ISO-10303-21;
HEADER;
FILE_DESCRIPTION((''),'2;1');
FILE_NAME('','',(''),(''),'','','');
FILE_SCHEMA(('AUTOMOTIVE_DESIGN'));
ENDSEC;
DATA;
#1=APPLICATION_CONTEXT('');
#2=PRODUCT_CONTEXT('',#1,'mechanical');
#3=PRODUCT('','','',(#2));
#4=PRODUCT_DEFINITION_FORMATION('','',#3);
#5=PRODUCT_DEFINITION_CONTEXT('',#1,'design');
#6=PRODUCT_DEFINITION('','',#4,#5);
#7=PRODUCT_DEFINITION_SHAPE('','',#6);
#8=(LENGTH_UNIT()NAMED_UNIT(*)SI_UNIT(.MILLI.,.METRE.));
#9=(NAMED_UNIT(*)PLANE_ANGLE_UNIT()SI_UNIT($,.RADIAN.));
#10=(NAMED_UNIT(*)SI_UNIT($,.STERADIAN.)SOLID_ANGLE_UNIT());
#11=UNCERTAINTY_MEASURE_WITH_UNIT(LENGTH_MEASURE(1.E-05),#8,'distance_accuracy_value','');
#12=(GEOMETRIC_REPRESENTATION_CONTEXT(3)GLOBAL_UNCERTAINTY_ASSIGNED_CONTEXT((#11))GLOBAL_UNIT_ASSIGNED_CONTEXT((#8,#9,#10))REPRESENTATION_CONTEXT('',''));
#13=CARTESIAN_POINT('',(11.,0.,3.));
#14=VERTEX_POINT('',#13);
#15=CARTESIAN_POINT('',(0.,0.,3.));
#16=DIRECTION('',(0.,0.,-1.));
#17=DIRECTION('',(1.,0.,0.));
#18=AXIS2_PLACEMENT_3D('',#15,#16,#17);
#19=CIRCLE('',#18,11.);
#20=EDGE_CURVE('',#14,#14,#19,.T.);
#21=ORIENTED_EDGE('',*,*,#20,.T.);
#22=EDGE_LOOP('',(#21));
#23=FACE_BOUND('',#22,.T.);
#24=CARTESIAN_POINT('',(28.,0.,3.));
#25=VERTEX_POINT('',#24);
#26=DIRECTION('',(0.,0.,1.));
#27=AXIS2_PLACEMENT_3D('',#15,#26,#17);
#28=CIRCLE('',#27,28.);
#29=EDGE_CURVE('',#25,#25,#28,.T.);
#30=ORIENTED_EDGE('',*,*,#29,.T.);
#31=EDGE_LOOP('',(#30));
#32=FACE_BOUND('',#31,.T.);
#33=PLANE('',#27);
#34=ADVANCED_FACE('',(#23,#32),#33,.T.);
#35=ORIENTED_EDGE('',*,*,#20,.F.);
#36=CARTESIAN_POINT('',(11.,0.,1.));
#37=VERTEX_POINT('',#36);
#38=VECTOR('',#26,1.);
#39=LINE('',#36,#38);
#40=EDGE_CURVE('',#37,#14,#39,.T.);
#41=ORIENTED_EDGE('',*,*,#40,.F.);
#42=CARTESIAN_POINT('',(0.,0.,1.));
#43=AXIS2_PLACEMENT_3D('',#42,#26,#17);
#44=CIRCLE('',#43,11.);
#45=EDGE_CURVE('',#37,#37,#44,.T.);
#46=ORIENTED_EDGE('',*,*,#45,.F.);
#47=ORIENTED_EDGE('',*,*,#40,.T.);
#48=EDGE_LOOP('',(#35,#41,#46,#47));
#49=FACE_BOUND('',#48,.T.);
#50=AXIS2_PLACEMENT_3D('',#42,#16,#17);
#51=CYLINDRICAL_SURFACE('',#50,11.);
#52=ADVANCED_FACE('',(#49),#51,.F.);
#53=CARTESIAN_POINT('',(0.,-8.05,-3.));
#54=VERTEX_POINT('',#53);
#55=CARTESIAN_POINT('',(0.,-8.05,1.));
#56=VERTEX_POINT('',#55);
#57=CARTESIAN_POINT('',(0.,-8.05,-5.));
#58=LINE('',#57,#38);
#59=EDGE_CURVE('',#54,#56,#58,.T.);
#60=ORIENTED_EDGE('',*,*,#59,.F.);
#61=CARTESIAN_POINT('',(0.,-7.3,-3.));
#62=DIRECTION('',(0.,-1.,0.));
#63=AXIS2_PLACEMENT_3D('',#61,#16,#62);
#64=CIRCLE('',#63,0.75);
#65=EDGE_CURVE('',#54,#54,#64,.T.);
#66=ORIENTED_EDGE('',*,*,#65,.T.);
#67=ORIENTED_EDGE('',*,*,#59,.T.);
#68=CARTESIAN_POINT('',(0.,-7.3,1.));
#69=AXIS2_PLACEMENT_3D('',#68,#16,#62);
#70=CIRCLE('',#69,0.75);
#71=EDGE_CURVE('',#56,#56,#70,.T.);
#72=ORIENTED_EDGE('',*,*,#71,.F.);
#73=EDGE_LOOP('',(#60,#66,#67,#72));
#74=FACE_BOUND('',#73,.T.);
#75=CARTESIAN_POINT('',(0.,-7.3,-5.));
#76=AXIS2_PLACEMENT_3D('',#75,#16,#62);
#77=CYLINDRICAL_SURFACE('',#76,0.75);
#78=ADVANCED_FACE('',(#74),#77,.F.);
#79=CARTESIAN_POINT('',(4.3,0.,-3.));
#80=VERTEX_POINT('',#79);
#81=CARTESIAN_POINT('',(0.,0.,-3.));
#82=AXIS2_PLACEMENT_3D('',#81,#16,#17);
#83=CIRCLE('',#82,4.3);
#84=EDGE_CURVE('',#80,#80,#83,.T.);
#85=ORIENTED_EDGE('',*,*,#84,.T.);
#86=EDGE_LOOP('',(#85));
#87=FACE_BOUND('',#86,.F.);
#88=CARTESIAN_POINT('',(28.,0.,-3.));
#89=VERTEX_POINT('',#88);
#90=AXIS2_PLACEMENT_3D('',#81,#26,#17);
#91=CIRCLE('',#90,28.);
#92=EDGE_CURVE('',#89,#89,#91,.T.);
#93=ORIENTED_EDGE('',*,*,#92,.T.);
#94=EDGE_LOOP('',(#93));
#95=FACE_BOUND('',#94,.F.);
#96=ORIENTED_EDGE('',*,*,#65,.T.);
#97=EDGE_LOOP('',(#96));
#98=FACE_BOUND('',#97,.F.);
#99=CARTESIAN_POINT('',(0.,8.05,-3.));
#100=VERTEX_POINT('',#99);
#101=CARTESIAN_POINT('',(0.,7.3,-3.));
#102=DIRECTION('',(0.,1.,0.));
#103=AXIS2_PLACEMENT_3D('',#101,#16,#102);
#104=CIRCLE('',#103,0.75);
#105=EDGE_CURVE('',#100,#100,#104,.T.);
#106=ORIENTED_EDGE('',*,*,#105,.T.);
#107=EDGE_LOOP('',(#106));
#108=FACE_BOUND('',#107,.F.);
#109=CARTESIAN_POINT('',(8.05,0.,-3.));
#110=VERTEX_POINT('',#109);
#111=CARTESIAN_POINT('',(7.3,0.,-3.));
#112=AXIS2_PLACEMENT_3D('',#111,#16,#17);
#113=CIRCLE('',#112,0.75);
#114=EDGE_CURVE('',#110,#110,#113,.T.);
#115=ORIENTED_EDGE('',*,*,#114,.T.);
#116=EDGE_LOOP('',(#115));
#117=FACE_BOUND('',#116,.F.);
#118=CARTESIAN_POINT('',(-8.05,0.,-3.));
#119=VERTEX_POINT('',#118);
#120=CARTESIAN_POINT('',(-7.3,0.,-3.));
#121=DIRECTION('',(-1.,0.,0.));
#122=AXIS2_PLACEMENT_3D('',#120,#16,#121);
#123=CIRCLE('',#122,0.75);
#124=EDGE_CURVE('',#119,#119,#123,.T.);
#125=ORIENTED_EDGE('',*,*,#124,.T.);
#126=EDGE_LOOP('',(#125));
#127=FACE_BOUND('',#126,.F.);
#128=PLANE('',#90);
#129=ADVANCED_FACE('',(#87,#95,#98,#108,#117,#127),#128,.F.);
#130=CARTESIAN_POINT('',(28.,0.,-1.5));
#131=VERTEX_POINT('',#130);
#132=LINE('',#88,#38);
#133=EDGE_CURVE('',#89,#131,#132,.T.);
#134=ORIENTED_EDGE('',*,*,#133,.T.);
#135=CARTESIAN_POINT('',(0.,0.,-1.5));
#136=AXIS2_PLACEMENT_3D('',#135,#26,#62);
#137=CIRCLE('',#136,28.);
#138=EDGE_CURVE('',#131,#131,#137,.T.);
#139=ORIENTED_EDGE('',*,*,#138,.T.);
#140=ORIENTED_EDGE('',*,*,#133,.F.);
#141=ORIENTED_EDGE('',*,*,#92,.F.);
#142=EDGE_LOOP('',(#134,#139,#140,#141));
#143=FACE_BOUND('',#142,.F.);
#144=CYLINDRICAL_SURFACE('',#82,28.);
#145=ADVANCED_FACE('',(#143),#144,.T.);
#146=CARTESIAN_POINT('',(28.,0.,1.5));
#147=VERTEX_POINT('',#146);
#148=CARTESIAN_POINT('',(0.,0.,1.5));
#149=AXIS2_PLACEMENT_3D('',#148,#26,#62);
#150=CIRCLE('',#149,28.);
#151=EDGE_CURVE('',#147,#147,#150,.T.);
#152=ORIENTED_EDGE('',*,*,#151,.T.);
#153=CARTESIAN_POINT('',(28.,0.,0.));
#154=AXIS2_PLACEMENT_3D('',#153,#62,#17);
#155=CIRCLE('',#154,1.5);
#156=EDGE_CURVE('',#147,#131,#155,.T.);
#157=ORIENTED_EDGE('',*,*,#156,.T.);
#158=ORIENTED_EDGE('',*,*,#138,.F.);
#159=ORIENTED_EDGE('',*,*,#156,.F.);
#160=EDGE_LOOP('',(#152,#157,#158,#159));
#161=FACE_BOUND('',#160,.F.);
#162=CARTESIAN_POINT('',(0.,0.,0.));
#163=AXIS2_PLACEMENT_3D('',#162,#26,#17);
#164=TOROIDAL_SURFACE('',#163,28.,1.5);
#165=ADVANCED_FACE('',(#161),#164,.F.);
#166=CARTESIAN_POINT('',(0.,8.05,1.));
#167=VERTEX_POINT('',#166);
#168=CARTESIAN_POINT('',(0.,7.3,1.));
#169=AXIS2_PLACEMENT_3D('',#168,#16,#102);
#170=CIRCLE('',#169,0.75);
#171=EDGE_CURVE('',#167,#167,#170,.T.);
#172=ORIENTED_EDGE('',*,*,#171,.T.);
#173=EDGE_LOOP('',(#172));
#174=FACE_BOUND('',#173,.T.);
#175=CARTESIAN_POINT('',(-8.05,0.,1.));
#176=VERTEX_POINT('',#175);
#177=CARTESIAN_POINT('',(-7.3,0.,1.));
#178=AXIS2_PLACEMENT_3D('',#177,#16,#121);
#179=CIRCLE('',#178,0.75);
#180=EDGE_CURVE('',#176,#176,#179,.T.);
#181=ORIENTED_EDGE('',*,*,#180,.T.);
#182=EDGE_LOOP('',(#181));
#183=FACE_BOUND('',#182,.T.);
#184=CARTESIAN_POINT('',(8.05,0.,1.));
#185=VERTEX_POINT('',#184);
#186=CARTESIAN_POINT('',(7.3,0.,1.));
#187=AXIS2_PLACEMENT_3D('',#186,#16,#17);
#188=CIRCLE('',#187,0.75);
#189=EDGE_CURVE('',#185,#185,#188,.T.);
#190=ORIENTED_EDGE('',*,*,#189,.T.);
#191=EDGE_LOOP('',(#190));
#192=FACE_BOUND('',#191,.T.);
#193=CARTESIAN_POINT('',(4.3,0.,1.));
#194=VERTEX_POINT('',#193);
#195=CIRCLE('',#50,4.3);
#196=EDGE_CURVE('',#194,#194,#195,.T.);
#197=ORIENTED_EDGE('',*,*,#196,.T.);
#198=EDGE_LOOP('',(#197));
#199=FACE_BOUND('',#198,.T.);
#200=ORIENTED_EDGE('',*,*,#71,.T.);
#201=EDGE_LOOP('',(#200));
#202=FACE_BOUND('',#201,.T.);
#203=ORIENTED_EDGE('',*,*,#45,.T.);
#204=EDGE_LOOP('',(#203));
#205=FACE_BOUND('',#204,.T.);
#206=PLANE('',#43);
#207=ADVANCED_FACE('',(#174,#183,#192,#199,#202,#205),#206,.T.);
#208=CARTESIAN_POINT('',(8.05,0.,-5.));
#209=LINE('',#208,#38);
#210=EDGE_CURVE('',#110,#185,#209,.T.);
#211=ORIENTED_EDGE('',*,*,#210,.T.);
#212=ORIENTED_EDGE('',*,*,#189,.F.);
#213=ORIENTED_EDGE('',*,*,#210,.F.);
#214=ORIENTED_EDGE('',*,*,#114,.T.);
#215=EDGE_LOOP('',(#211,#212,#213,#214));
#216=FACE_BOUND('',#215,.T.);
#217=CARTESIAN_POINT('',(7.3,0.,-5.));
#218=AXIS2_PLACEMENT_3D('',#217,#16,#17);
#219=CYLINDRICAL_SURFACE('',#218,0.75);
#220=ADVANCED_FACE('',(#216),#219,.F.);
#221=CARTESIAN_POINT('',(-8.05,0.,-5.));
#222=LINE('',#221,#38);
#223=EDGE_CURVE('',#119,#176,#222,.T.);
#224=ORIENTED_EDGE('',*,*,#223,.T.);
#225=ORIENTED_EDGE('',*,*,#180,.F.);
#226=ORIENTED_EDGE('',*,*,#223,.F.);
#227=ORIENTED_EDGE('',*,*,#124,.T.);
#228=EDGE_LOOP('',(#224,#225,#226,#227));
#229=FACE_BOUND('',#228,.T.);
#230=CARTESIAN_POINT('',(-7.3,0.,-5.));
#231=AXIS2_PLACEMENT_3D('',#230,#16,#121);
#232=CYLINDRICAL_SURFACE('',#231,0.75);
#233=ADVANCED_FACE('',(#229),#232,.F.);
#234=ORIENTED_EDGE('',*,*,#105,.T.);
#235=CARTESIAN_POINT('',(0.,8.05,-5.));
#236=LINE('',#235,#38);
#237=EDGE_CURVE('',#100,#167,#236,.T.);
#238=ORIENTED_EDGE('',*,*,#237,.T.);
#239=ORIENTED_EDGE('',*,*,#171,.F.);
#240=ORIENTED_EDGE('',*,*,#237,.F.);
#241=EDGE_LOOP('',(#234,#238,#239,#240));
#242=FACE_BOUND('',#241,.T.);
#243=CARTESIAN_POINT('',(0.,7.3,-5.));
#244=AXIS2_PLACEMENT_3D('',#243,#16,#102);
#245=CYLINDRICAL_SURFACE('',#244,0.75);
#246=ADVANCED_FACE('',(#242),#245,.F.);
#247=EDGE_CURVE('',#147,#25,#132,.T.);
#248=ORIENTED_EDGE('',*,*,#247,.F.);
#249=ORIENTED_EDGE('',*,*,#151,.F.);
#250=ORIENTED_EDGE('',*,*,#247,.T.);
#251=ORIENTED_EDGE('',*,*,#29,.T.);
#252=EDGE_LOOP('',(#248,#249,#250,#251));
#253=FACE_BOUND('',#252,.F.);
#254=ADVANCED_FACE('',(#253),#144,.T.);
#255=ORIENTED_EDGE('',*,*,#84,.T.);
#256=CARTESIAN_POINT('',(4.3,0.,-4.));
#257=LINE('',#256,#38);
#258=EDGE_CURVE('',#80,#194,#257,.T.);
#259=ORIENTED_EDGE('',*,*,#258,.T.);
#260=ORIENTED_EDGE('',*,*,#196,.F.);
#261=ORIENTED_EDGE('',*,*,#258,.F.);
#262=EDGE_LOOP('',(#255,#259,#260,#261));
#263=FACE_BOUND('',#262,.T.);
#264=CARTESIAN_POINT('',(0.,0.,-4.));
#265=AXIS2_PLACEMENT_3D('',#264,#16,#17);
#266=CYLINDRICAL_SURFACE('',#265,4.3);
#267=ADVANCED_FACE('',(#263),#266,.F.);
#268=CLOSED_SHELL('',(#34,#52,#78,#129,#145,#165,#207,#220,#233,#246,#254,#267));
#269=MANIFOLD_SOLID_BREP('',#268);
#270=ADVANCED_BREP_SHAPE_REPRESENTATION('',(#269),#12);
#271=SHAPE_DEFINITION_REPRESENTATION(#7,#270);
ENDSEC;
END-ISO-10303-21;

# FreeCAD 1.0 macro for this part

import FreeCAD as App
import Part
import Sketcher

doc = App.newDocument("Part")
params = doc.addObject("Spreadsheet::Sheet", "Params")
for row, (alias, value) in enumerate([
    ("sketch1_diameter", "1.5 mm"),
    ("pad1_length", "10 mm"),
    ("sketch2_diameter", "8.6 mm"),
    ("pad2_length", "10 mm"),
    ("sketch3_diameter", "22 mm"),
    ("pad3_length", "10 mm"),
    ("sketch4_diameter", "3 mm"),
    ("revolution_angle", "360 deg"),
    ("sketch5_diameter", "56 mm"),
    ("pad4_length", "6 mm"),
], start=1):
    params.set(f"A{row}", alias)
    params.set(f"B{row}", "=" + value)
    params.setAlias(f"B{row}", alias)

body = doc.addObject("PartDesign::Body", "Body")

# Sketch on XY plane
sketch1 = doc.addObject("Sketcher::SketchObject", "Sketch")
body.addObject(sketch1)
sketch1.AttachmentSupport = (doc.XY_Plane, [""])
sketch1.MapMode = "FlatFace"
sketch1.AttachmentOffset = App.Placement(App.Vector(0, 0, -5), App.Rotation())
sketch1.addGeometry(Part.Circle(App.Vector(7.3, 0, 0), App.Vector(0, 0, 1), 0.75), False)
sketch1.addConstraint([
    Sketcher.Constraint("PointOnObject", 0, 3, -1),
    Sketcher.Constraint("Diameter", 0, 1.5),
    Sketcher.Constraint("DistanceX", -1, 1, 0, 3, 7.3),
])
sketch1.setExpression("Constraints[1]", "Params.sketch1_diameter")
pad1 = doc.addObject("PartDesign::Pad", "Pad")
body.addObject(pad1)
pad1.Profile = sketch1
pad1.setExpression("Length", "Params.pad1_length")
body2 = doc.addObject("PartDesign::Body", "Body001")
body2.AllowCompound = True
doc.recompute()

body2.BaseFeature = body
doc.recompute()

body3 = doc.addObject("PartDesign::Body", "Body002")
body3.BaseFeature = body
body3.Placement = App.Placement(App.Vector(0, 0, 0), App.Rotation(App.Vector(0, 0, 1), 90))
boolean = doc.addObject("PartDesign::Boolean", "Boolean")
body2.addObject(boolean)
boolean.Type = "Fuse"
boolean.addObjects([body3])
doc.recompute()

body4 = doc.addObject("PartDesign::Body", "Body003")
body4.BaseFeature = body
body4.Placement = App.Placement(App.Vector(0, 0, 0), App.Rotation(App.Vector(0, 0, 1), 180))
boolean2 = doc.addObject("PartDesign::Boolean", "Boolean001")
body2.addObject(boolean2)
boolean2.Type = "Fuse"
boolean2.addObjects([body4])
doc.recompute()

body.Placement = App.Placement(App.Vector(0, 0, 0), App.Rotation(App.Vector(0, 0, 1), 270))
boolean3 = doc.addObject("PartDesign::Boolean", "Boolean002")
body2.addObject(boolean3)
boolean3.Type = "Fuse"
boolean3.addObjects([body])
body5 = doc.addObject("PartDesign::Body", "Body004")

# Sketch on XY plane
sketch2 = doc.addObject("Sketcher::SketchObject", "Sketch001")
body5.addObject(sketch2)
sketch2.AttachmentSupport = (doc.getObject("XY_Plane004"), [""])
sketch2.MapMode = "FlatFace"
sketch2.AttachmentOffset = App.Placement(App.Vector(0, 0, -4), App.Rotation())
sketch2.addGeometry(Part.Circle(App.Vector(0, 0, 0), App.Vector(0, 0, 1), 4.3), False)
sketch2.addConstraint([
    Sketcher.Constraint("Coincident", 0, 3, -1, 1),
    Sketcher.Constraint("Diameter", 0, 8.6),
])
sketch2.setExpression("Constraints[1]", "Params.sketch2_diameter")
pad2 = doc.addObject("PartDesign::Pad", "Pad001")
body5.addObject(pad2)
pad2.Profile = sketch2
pad2.setExpression("Length", "Params.pad2_length")
body6 = doc.addObject("PartDesign::Body", "Body005")

# Sketch on XY plane
sketch3 = doc.addObject("Sketcher::SketchObject", "Sketch002")
body6.addObject(sketch3)
sketch3.AttachmentSupport = (doc.getObject("XY_Plane005"), [""])
sketch3.MapMode = "FlatFace"
sketch3.AttachmentOffset = App.Placement(App.Vector(0, 0, 1), App.Rotation())
sketch3.addGeometry(Part.Circle(App.Vector(0, 0, 0), App.Vector(0, 0, 1), 11), False)
sketch3.addConstraint([
    Sketcher.Constraint("Coincident", 0, 3, -1, 1),
    Sketcher.Constraint("Diameter", 0, 22.0),
])
sketch3.setExpression("Constraints[1]", "Params.sketch3_diameter")
pad3 = doc.addObject("PartDesign::Pad", "Pad002")
body6.addObject(pad3)
pad3.Profile = sketch3
pad3.setExpression("Length", "Params.pad3_length")
body7 = doc.addObject("PartDesign::Body", "Body006")

# Sketch on XZ plane
sketch4 = doc.addObject("Sketcher::SketchObject", "Sketch003")
body7.addObject(sketch4)
sketch4.AttachmentSupport = (doc.getObject("XZ_Plane006"), [""])
sketch4.MapMode = "FlatFace"
sketch4.addGeometry(Part.Circle(App.Vector(28, 0, 0), App.Vector(0, 0, 1), 1.5), False)
sketch4.addConstraint([
    Sketcher.Constraint("PointOnObject", 0, 3, -1),
    Sketcher.Constraint("Diameter", 0, 3.0),
    Sketcher.Constraint("DistanceX", -1, 1, 0, 3, 28.0),
])
sketch4.setExpression("Constraints[1]", "Params.sketch4_diameter")
revolution = doc.addObject("PartDesign::Revolution", "Revolution")
body7.addObject(revolution)
revolution.Profile = sketch4
revolution.ReferenceAxis = (sketch4, ["V_Axis"])
revolution.setExpression("Angle", "Params.revolution_angle")
body8 = doc.addObject("PartDesign::Body", "Body007")

# Sketch on XY plane
sketch5 = doc.addObject("Sketcher::SketchObject", "Sketch004")
body8.addObject(sketch5)
sketch5.AttachmentSupport = (doc.getObject("XY_Plane007"), [""])
sketch5.MapMode = "FlatFace"
sketch5.AttachmentOffset = App.Placement(App.Vector(0, 0, -3), App.Rotation())
sketch5.addGeometry(Part.Circle(App.Vector(0, 0, 0), App.Vector(0, 0, 1), 28), False)
sketch5.addConstraint([
    Sketcher.Constraint("Coincident", 0, 3, -1, 1),
    Sketcher.Constraint("Diameter", 0, 56.0),
])
sketch5.setExpression("Constraints[1]", "Params.sketch5_diameter")
pad4 = doc.addObject("PartDesign::Pad", "Pad003")
body8.addObject(pad4)
pad4.Profile = sketch5
pad4.setExpression("Length", "Params.pad4_length")
doc.recompute()

boolean4 = doc.addObject("PartDesign::Boolean", "Boolean003")
body8.addObject(boolean4)
boolean4.Type = "Cut"
boolean4.addObjects([body7])
doc.recompute()

boolean5 = doc.addObject("PartDesign::Boolean", "Boolean004")
body8.addObject(boolean5)
boolean5.Type = "Cut"
boolean5.addObjects([body6])
doc.recompute()

boolean6 = doc.addObject("PartDesign::Boolean", "Boolean005")
body8.addObject(boolean6)
boolean6.Type = "Cut"
boolean6.addObjects([body5])
doc.recompute()

boolean7 = doc.addObject("PartDesign::Boolean", "Boolean006")
body8.addObject(boolean7)
boolean7.Type = "Cut"
boolean7.addObjects([body2])

doc.recompute()
